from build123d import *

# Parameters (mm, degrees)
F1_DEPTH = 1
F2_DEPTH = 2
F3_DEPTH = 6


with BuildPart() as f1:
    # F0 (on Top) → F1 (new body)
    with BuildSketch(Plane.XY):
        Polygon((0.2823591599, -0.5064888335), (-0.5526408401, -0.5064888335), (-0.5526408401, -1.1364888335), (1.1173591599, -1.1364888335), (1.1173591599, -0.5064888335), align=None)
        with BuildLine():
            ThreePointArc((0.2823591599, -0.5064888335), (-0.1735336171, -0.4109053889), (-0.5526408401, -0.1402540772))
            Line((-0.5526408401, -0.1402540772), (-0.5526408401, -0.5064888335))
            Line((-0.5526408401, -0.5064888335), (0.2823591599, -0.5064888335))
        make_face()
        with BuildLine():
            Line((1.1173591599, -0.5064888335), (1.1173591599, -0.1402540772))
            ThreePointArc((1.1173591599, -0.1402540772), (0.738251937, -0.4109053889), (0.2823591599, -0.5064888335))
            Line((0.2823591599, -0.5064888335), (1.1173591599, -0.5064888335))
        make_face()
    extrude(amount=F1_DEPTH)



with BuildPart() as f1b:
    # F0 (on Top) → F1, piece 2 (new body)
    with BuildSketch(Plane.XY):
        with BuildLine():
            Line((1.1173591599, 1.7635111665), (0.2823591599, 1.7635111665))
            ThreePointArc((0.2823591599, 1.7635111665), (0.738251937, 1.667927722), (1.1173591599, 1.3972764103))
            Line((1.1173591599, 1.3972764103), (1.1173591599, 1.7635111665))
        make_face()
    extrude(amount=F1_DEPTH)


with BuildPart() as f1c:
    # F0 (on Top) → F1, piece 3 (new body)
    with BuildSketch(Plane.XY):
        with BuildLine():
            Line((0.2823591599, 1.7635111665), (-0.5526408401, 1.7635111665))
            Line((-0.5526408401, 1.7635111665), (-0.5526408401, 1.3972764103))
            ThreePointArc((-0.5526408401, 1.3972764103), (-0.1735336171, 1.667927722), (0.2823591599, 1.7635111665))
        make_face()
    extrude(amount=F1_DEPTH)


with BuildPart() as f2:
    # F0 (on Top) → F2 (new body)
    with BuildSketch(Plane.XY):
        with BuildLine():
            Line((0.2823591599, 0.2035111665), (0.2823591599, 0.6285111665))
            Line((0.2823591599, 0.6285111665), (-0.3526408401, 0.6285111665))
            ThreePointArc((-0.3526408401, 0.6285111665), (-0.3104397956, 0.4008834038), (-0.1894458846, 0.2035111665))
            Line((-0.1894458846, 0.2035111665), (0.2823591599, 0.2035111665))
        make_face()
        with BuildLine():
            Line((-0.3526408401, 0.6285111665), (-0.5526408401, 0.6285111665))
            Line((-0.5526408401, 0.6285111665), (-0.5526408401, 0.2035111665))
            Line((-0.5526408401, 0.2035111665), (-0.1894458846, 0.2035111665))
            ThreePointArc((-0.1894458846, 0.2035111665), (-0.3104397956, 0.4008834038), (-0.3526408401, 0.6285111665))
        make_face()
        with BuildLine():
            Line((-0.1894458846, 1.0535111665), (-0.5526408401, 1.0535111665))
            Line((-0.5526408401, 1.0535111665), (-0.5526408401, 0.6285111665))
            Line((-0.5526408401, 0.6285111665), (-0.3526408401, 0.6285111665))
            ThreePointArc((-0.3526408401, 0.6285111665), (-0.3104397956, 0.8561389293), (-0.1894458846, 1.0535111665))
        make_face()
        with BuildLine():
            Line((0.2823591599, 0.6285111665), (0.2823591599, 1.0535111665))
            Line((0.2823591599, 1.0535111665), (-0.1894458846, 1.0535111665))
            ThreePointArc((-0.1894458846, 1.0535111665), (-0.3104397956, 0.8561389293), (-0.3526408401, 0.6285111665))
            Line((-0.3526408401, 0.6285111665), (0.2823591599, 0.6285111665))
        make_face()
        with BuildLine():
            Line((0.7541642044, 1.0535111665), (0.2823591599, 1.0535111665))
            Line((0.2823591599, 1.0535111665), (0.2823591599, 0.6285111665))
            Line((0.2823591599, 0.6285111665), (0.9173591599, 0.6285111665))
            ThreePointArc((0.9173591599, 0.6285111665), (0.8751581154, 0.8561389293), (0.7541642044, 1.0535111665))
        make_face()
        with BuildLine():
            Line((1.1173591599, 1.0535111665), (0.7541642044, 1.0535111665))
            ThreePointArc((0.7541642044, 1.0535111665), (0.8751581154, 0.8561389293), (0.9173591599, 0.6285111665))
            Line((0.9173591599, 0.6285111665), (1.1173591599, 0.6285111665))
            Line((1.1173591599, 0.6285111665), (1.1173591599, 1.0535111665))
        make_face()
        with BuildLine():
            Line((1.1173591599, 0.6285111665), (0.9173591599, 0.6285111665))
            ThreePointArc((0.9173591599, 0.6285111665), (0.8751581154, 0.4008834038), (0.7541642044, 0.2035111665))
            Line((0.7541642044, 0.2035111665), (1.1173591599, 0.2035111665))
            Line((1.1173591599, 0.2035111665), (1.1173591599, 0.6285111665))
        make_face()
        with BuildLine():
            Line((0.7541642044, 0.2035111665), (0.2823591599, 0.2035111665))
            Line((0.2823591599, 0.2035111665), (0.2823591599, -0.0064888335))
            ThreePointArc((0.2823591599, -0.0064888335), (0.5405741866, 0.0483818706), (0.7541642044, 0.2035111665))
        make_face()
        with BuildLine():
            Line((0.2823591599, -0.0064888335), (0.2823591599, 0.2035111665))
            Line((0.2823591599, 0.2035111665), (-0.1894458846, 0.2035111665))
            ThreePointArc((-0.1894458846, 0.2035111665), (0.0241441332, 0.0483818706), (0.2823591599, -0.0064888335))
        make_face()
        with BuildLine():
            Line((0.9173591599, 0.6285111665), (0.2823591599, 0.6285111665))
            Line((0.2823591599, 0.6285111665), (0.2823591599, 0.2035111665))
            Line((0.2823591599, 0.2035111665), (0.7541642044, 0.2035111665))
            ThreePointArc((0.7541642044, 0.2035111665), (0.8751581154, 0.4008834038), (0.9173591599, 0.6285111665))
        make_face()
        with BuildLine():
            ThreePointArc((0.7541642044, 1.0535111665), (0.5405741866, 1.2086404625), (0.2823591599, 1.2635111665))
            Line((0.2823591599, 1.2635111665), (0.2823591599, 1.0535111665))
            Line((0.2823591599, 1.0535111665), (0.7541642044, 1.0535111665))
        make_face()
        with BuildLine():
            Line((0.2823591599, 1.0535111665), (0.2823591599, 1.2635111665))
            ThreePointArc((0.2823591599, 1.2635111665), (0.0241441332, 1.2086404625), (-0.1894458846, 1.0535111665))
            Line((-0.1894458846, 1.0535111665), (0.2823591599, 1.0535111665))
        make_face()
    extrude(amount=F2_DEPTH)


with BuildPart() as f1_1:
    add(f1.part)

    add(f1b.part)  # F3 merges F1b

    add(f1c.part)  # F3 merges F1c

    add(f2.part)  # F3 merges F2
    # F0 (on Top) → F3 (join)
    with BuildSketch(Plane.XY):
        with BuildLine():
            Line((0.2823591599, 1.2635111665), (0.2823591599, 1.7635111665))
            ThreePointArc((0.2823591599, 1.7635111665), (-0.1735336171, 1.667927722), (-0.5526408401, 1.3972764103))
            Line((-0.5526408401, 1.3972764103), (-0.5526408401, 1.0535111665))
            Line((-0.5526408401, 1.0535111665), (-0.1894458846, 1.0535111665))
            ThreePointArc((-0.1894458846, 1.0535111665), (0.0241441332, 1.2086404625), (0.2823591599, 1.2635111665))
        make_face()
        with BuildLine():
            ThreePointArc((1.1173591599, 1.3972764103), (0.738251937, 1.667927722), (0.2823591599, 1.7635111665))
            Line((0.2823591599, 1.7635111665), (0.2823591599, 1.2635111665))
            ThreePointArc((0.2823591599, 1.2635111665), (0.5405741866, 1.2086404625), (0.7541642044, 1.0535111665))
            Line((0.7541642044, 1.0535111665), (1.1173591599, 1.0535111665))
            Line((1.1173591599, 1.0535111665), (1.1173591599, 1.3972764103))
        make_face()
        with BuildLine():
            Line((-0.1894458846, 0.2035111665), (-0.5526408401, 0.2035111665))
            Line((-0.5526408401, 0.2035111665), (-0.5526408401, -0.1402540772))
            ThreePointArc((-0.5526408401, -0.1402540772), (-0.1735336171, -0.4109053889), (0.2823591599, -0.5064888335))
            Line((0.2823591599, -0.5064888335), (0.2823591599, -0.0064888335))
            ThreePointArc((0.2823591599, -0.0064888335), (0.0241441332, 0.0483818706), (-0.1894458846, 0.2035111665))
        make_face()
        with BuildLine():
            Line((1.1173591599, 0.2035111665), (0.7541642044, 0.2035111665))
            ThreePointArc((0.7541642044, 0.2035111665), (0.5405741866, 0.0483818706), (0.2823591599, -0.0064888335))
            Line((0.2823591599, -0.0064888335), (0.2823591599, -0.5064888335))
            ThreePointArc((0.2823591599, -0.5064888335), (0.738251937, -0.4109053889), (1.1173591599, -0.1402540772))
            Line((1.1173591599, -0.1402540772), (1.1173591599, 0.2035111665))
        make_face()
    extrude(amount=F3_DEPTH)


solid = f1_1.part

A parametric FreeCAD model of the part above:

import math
import FreeCAD as App
import Part
import Sketcher
Q = App.Units.Quantity

doc = App.newDocument("Part")
body = doc.addObject("PartDesign::Body", "Body")

# Sketch on XY plane
sketch1 = doc.addObject("Sketcher::SketchObject", "Sketch")
body.addObject(sketch1)
sketch1.AttachmentSupport = (doc.XY_Plane, [""])
sketch1.MapMode = "FlatFace"
sketch1.addGeometry(Part.LineSegment(App.Vector(-0.6, -1.1, 0), App.Vector(1.1, -1.1, 0)), False)
sketch1.addGeometry(Part.LineSegment(App.Vector(1.1, -1.1, 0), App.Vector(1.1, -0.1, 0)), False)
sketch1.addGeometry(Part.ArcOfCircle(Part.Circle(App.Vector(0.3, 0.6, 0), App.Vector(0, 0, 1), 1.1), math.radians(-90), math.radians(-43)), False)
sketch1.addGeometry(Part.ArcOfCircle(Part.Circle(App.Vector(0.3, 0.6, 0), App.Vector(0, 0, 1), 1.1), math.radians(-137), math.radians(-90)), False)
sketch1.addGeometry(Part.LineSegment(App.Vector(-0.6, -0.1, 0), App.Vector(-0.6, -1.1, 0)), False)
sketch1.addConstraint(Sketcher.Constraint("Coincident", 0, 2, 1, 1))
sketch1.addConstraint(Sketcher.Constraint("Coincident", 1, 2, 2, 2))
sketch1.addConstraint(Sketcher.Constraint("Tangent", 2, 1, 3, 2))
sketch1.addConstraint(Sketcher.Constraint("Coincident", 3, 1, 4, 1))
sketch1.addConstraint(Sketcher.Constraint("Coincident", 4, 2, 0, 1))
sketch1.addConstraint(Sketcher.Constraint("Horizontal", 0))
sketch1.addConstraint(Sketcher.Constraint("Vertical", 1))
sketch1.addConstraint(Sketcher.Constraint("Vertical", 4))
sketch1.addConstraint(Sketcher.Constraint("Equal", 2, 3))
sketch1.addConstraint(Sketcher.Constraint("Horizontal", 1, 2, 3, 1))
sketch1.addConstraint(Sketcher.Constraint("Vertical", 3, 3, 2, 1))
sketch1.addConstraint(Sketcher.Constraint("Radius", 2, Q("1.135 mm")))
sketch1.addConstraint(Sketcher.Constraint("DistanceX", 0, 1, 0, 2, Q("1.67 mm")))
sketch1.addConstraint(Sketcher.Constraint("DistanceY", 0, 2, 2, 1, Q("0.63 mm")))
sketch1.addConstraint(Sketcher.Constraint("DistanceX", -1, 1, 2, 3, Q("0.282359 mm")))
sketch1.addConstraint(Sketcher.Constraint("DistanceY", -1, 1, 2, 3, Q("0.628511 mm")))
pad1 = doc.addObject("PartDesign::Pad", "Pad")
body.addObject(pad1)
pad1.Profile = sketch1
pad1.Length = 1
body2 = doc.addObject("PartDesign::Body", "Body001")

# Sketch on XY plane
sketch2 = doc.addObject("Sketcher::SketchObject", "Sketch001")
body2.addObject(sketch2)
sketch2.AttachmentSupport = (doc.getObject("XY_Plane001"), [""])
sketch2.MapMode = "FlatFace"
sketch2.addGeometry(Part.LineSegment(App.Vector(1.12, 1.76, 0), App.Vector(0.28, 1.76, 0)), False)
sketch2.addGeometry(Part.ArcOfCircle(Part.Circle(App.Vector(0.28, 0.63, 0), App.Vector(0, 0, 1), 1.14), math.radians(43), math.radians(90)), False)
sketch2.addGeometry(Part.LineSegment(App.Vector(1.12, 1.4, 0), App.Vector(1.12, 1.76, 0)), False)
sketch2.addConstraint(Sketcher.Constraint("Tangent", 0, 2, 1, 2))
sketch2.addConstraint(Sketcher.Constraint("Coincident", 1, 1, 2, 1))
sketch2.addConstraint(Sketcher.Constraint("Coincident", 2, 2, 0, 1))
sketch2.addConstraint(Sketcher.Constraint("Horizontal", 0))
sketch2.addConstraint(Sketcher.Constraint("Vertical", 2))
sketch2.addConstraint(Sketcher.Constraint("Radius", 1, Q("1.135 mm")))
sketch2.addConstraint(Sketcher.Constraint("DistanceX", 0, 2, 0, 1, Q("0.835 mm")))
sketch2.addConstraint(Sketcher.Constraint("DistanceX", -1, 1, 1, 3, Q("0.282359 mm")))
sketch2.addConstraint(Sketcher.Constraint("DistanceY", -1, 1, 1, 3, Q("0.628511 mm")))
pad2 = doc.addObject("PartDesign::Pad", "Pad001")
body2.addObject(pad2)
pad2.Profile = sketch2
pad2.Length = 1
body3 = doc.addObject("PartDesign::Body", "Body002")

# Sketch on XY plane
sketch3 = doc.addObject("Sketcher::SketchObject", "Sketch002")
body3.addObject(sketch3)
sketch3.AttachmentSupport = (doc.getObject("XY_Plane002"), [""])
sketch3.MapMode = "FlatFace"
sketch3.addGeometry(Part.LineSegment(App.Vector(0.28, 1.76, 0), App.Vector(-0.55, 1.76, 0)), False)
sketch3.addGeometry(Part.LineSegment(App.Vector(-0.55, 1.76, 0), App.Vector(-0.55, 1.4, 0)), False)
sketch3.addGeometry(Part.ArcOfCircle(Part.Circle(App.Vector(0.28, 0.63, 0), App.Vector(0, 0, 1), 1.14), math.radians(90), math.radians(137)), False)
sketch3.addConstraint(Sketcher.Constraint("Coincident", 0, 2, 1, 1))
sketch3.addConstraint(Sketcher.Constraint("Coincident", 1, 2, 2, 2))
sketch3.addConstraint(Sketcher.Constraint("Tangent", 2, 1, 0, 1))
sketch3.addConstraint(Sketcher.Constraint("Horizontal", 0))
sketch3.addConstraint(Sketcher.Constraint("Vertical", 1))
sketch3.addConstraint(Sketcher.Constraint("Radius", 2, Q("1.135 mm")))
sketch3.addConstraint(Sketcher.Constraint("DistanceX", 0, 2, 0, 1, Q("0.835 mm")))
sketch3.addConstraint(Sketcher.Constraint("DistanceX", -1, 1, 2, 3, Q("0.282359 mm")))
sketch3.addConstraint(Sketcher.Constraint("DistanceY", -1, 1, 2, 3, Q("0.628511 mm")))
pad3 = doc.addObject("PartDesign::Pad", "Pad002")
body3.addObject(pad3)
pad3.Profile = sketch3
pad3.Length = 1
body4 = doc.addObject("PartDesign::Body", "Body003")

# Sketch on XY plane
sketch4 = doc.addObject("Sketcher::SketchObject", "Sketch003")
body4.addObject(sketch4)
sketch4.AttachmentSupport = (doc.getObject("XY_Plane003"), [""])
sketch4.MapMode = "FlatFace"
sketch4.addGeometry(Part.ArcOfCircle(Part.Circle(App.Vector(0.28, 0.63, 0), App.Vector(0, 0, 1), 0.64), math.radians(-90), math.radians(-42)), False)
sketch4.addGeometry(Part.LineSegment(App.Vector(0.75, 0.2, 0), App.Vector(1.12, 0.2, 0)), False)
sketch4.addGeometry(Part.LineSegment(App.Vector(1.12, 0.2, 0), App.Vector(1.12, 1.05, 0)), False)
sketch4.addGeometry(Part.LineSegment(App.Vector(1.12, 1.05, 0), App.Vector(0.75, 1.05, 0)), False)
sketch4.addGeometry(Part.ArcOfCircle(Part.Circle(App.Vector(0.28, 0.63, 0), App.Vector(0, 0, 1), 0.63), math.radians(42), math.radians(90)), False)
sketch4.addGeometry(Part.ArcOfCircle(Part.Circle(App.Vector(0.28, 0.63, 0), App.Vector(0, 0, 1), 0.63), math.radians(90), math.radians(138)), False)
sketch4.addGeometry(Part.LineSegment(App.Vector(-0.19, 1.05, 0), App.Vector(-0.55, 1.05, 0)), False)
sketch4.addGeometry(Part.LineSegment(App.Vector(-0.55, 1.05, 0), App.Vector(-0.55, 0.2, 0)), False)
sketch4.addGeometry(Part.LineSegment(App.Vector(-0.55, 0.2, 0), App.Vector(-0.19, 0.2, 0)), False)
sketch4.addGeometry(Part.ArcOfCircle(Part.Circle(App.Vector(0.28, 0.63, 0), App.Vector(0, 0, 1), 0.64), math.radians(-138), math.radians(-90)), False)
sketch4.addConstraint(Sketcher.Constraint("Coincident", 0, 2, 1, 1))
sketch4.addConstraint(Sketcher.Constraint("Coincident", 1, 2, 2, 1))
sketch4.addConstraint(Sketcher.Constraint("Coincident", 2, 2, 3, 1))
sketch4.addConstraint(Sketcher.Constraint("Coincident", 3, 2, 4, 1))
sketch4.addConstraint(Sketcher.Constraint("Tangent", 4, 2, 5, 1))
sketch4.addConstraint(Sketcher.Constraint("Coincident", 5, 2, 6, 1))
sketch4.addConstraint(Sketcher.Constraint("Coincident", 6, 2, 7, 1))
sketch4.addConstraint(Sketcher.Constraint("Coincident", 7, 2, 8, 1))
sketch4.addConstraint(Sketcher.Constraint("Coincident", 8, 2, 9, 1))
sketch4.addConstraint(Sketcher.Constraint("Tangent", 9, 2, 0, 1))
sketch4.addConstraint(Sketcher.Constraint("Horizontal", 1))
sketch4.addConstraint(Sketcher.Constraint("Vertical", 2))
sketch4.addConstraint(Sketcher.Constraint("Horizontal", 3))
sketch4.addConstraint(Sketcher.Constraint("Horizontal", 6))
sketch4.addConstraint(Sketcher.Constraint("Vertical", 7))
sketch4.addConstraint(Sketcher.Constraint("Horizontal", 8))
sketch4.addConstraint(Sketcher.Constraint("Coincident", 4, 3, 0, 3))
sketch4.addConstraint(Sketcher.Constraint("Equal", 0, 4))
sketch4.addConstraint(Sketcher.Constraint("Equal", 4, 5))
sketch4.addConstraint(Sketcher.Constraint("Equal", 5, 9))
sketch4.addConstraint(Sketcher.Constraint("Horizontal", 3, 2, 5, 2))
sketch4.addConstraint(Sketcher.Constraint("Horizontal", 1, 2, 7, 2))
sketch4.addConstraint(Sketcher.Constraint("Vertical", 0, 2, 3, 2))
sketch4.addConstraint(Sketcher.Constraint("Vertical", 9, 3, 4, 2))
sketch4.addConstraint(Sketcher.Constraint("Vertical", 4, 2, 9, 2))
sketch4.addConstraint(Sketcher.Constraint("Equal", 3, 6))
sketch4.addConstraint(Sketcher.Constraint("Radius", 0, Q("0.635 mm")))
sketch4.addConstraint(Sketcher.Constraint("DistanceY", 2, 1, 2, 2, Q("0.85 mm")))
sketch4.addConstraint(Sketcher.Constraint("DistanceX", 0, 3, 1, 2, Q("0.835 mm")))
sketch4.addConstraint(Sketcher.Constraint("DistanceX", -1, 1, 0, 3, Q("0.282359 mm")))
sketch4.addConstraint(Sketcher.Constraint("DistanceY", -1, 1, 0, 3, Q("0.628511 mm")))
pad4 = doc.addObject("PartDesign::Pad", "Pad003")
body4.addObject(pad4)
pad4.Profile = sketch4
pad4.Length = 2
body.AllowCompound = True
doc.recompute()

boolean = doc.addObject("PartDesign::Boolean", "Boolean")
body.addObject(boolean)
boolean.Type = "Fuse"
boolean.addObjects([body2])
doc.recompute()

boolean2 = doc.addObject("PartDesign::Boolean", "Boolean001")
body.addObject(boolean2)
boolean2.Type = "Fuse"
boolean2.addObjects([body3])
doc.recompute()

boolean3 = doc.addObject("PartDesign::Boolean", "Boolean002")
body.addObject(boolean3)
boolean3.Type = "Fuse"
boolean3.addObjects([body4])

# Sketch on XY plane
sketch5 = doc.addObject("Sketcher::SketchObject", "Sketch004")
body.addObject(sketch5)
sketch5.AttachmentSupport = (doc.XY_Plane, [""])
sketch5.MapMode = "FlatFace"
sketch5.addGeometry(Part.ArcOfCircle(Part.Circle(App.Vector(0.28, 0.63, 0), App.Vector(0, 0, 1), 1.14), math.radians(90), math.radians(137)), False)
sketch5.addGeometry(Part.LineSegment(App.Vector(-0.55, 1.4, 0), App.Vector(-0.55, 1.05, 0)), False)
sketch5.addGeometry(Part.LineSegment(App.Vector(-0.55, 1.05, 0), App.Vector(-0.19, 1.05, 0)), False)
sketch5.addGeometry(Part.ArcOfCircle(Part.Circle(App.Vector(0.28, 0.63, 0), App.Vector(0, 0, 1), 0.63), math.radians(90), math.radians(138)), False)
sketch5.addGeometry(Part.ArcOfCircle(Part.Circle(App.Vector(0.28, 0.63, 0), App.Vector(0, 0, 1), 0.63), math.radians(42), math.radians(90)), False)
sketch5.addGeometry(Part.LineSegment(App.Vector(0.75, 1.05, 0), App.Vector(1.12, 1.05, 0)), False)
sketch5.addGeometry(Part.LineSegment(App.Vector(1.12, 1.05, 0), App.Vector(1.12, 1.4, 0)), False)
sketch5.addGeometry(Part.ArcOfCircle(Part.Circle(App.Vector(0.28, 0.63, 0), App.Vector(0, 0, 1), 1.14), math.radians(43), math.radians(90)), False)
sketch5.addGeometry(Part.LineSegment(App.Vector(-0.19, 0.2, 0), App.Vector(-0.55, 0.2, 0)), False)
sketch5.addGeometry(Part.LineSegment(App.Vector(-0.55, 0.2, 0), App.Vector(-0.55, -0.14, 0)), False)
sketch5.addGeometry(Part.ArcOfCircle(Part.Circle(App.Vector(0.28, 0.63, 0), App.Vector(0, 0, 1), 1.14), math.radians(-137), math.radians(-90)), False)
sketch5.addGeometry(Part.ArcOfCircle(Part.Circle(App.Vector(0.28, 0.63, 0), App.Vector(0, 0, 1), 1.14), math.radians(-90), math.radians(-43)), False)
sketch5.addGeometry(Part.LineSegment(App.Vector(1.12, -0.14, 0), App.Vector(1.12, 0.2, 0)), False)
sketch5.addGeometry(Part.LineSegment(App.Vector(1.12, 0.2, 0), App.Vector(0.75, 0.2, 0)), False)
sketch5.addGeometry(Part.ArcOfCircle(Part.Circle(App.Vector(0.28, 0.63, 0), App.Vector(0, 0, 1), 0.64), math.radians(-90), math.radians(-42)), False)
sketch5.addGeometry(Part.ArcOfCircle(Part.Circle(App.Vector(0.28, 0.63, 0), App.Vector(0, 0, 1), 0.64), math.radians(-138), math.radians(-90)), False)
sketch5.addConstraint(Sketcher.Constraint("Coincident", 0, 2, 1, 1))
sketch5.addConstraint(Sketcher.Constraint("Coincident", 1, 2, 2, 1))
sketch5.addConstraint(Sketcher.Constraint("Coincident", 2, 2, 3, 2))
sketch5.addConstraint(Sketcher.Constraint("Tangent", 3, 1, 4, 2))
sketch5.addConstraint(Sketcher.Constraint("Coincident", 4, 1, 5, 1))
sketch5.addConstraint(Sketcher.Constraint("Coincident", 5, 2, 6, 1))
sketch5.addConstraint(Sketcher.Constraint("Coincident", 6, 2, 7, 1))
sketch5.addConstraint(Sketcher.Constraint("Tangent", 7, 2, 0, 1))
sketch5.addConstraint(Sketcher.Constraint("Coincident", 8, 2, 9, 1))
sketch5.addConstraint(Sketcher.Constraint("Coincident", 9, 2, 10, 1))
sketch5.addConstraint(Sketcher.Constraint("Tangent", 10, 2, 11, 1))
sketch5.addConstraint(Sketcher.Constraint("Coincident", 11, 2, 12, 1))
sketch5.addConstraint(Sketcher.Constraint("Coincident", 12, 2, 13, 1))
sketch5.addConstraint(Sketcher.Constraint("Coincident", 13, 2, 14, 2))
sketch5.addConstraint(Sketcher.Constraint("Tangent", 14, 1, 15, 2))
sketch5.addConstraint(Sketcher.Constraint("Coincident", 15, 1, 8, 1))
sketch5.addConstraint(Sketcher.Constraint("Vertical", 1))
sketch5.addConstraint(Sketcher.Constraint("Horizontal", 2))
sketch5.addConstraint(Sketcher.Constraint("Horizontal", 5))
sketch5.addConstraint(Sketcher.Constraint("Vertical", 6))
sketch5.addConstraint(Sketcher.Constraint("Horizontal", 8))
sketch5.addConstraint(Sketcher.Constraint("Vertical", 9))
sketch5.addConstraint(Sketcher.Constraint("Vertical", 12))
sketch5.addConstraint(Sketcher.Constraint("Horizontal", 13))
sketch5.addConstraint(Sketcher.Constraint("Coincident", 3, 3, 0, 3))
sketch5.addConstraint(Sketcher.Constraint("Coincident", 10, 3, 0, 3))
sketch5.addConstraint(Sketcher.Constraint("Coincident", 14, 3, 0, 3))
sketch5.addConstraint(Sketcher.Constraint("Equal", 3, 4))
sketch5.addConstraint(Sketcher.Constraint("Equal", 0, 7))
sketch5.addConstraint(Sketcher.Constraint("Equal", 7, 10))
sketch5.addConstraint(Sketcher.Constraint("Equal", 10, 11))
sketch5.addConstraint(Sketcher.Constraint("Equal", 4, 14))
sketch5.addConstraint(Sketcher.Constraint("Equal", 14, 15))
sketch5.addConstraint(Sketcher.Constraint("Horizontal", 2, 2, 4, 1))
sketch5.addConstraint(Sketcher.Constraint("Horizontal", 0, 2, 6, 2))
sketch5.addConstraint(Sketcher.Constraint("Horizontal", 9, 2, 11, 2))
sketch5.addConstraint(Sketcher.Constraint("Horizontal", 8, 2, 12, 2))
sketch5.addConstraint(Sketcher.Constraint("Vertical", 15, 3, 3, 1))
sketch5.addConstraint(Sketcher.Constraint("Vertical", 3, 1, 7, 2))
sketch5.addConstraint(Sketcher.Constraint("Vertical", 1, 2, 8, 2))
sketch5.addConstraint(Sketcher.Constraint("Vertical", 7, 2, 10, 2))
sketch5.addConstraint(Sketcher.Constraint("Vertical", 4, 1, 13, 2))
sketch5.addConstraint(Sketcher.Constraint("Vertical", 10, 2, 14, 1))
sketch5.addConstraint(Sketcher.Constraint("Radius", 0, Q("1.135 mm")))
sketch5.addConstraint(Sketcher.Constraint("Radius", 3, Q("0.635 mm")))
sketch5.addConstraint(Sketcher.Constraint("DistanceY", 2, 2, 3, 1, Q("0.21 mm")))
sketch5.addConstraint(Sketcher.Constraint("DistanceX", 0, 2, 3, 3, Q("0.835 mm")))
sketch5.addConstraint(Sketcher.Constraint("DistanceX", -1, 1, 0, 3, Q("0.282359 mm")))
sketch5.addConstraint(Sketcher.Constraint("DistanceY", -1, 1, 0, 3, Q("0.628511 mm")))
pad5 = doc.addObject("PartDesign::Pad", "Pad004")
body.addObject(pad5)
pad5.Profile = sketch5
pad5.Length = 6

doc.recompute()
